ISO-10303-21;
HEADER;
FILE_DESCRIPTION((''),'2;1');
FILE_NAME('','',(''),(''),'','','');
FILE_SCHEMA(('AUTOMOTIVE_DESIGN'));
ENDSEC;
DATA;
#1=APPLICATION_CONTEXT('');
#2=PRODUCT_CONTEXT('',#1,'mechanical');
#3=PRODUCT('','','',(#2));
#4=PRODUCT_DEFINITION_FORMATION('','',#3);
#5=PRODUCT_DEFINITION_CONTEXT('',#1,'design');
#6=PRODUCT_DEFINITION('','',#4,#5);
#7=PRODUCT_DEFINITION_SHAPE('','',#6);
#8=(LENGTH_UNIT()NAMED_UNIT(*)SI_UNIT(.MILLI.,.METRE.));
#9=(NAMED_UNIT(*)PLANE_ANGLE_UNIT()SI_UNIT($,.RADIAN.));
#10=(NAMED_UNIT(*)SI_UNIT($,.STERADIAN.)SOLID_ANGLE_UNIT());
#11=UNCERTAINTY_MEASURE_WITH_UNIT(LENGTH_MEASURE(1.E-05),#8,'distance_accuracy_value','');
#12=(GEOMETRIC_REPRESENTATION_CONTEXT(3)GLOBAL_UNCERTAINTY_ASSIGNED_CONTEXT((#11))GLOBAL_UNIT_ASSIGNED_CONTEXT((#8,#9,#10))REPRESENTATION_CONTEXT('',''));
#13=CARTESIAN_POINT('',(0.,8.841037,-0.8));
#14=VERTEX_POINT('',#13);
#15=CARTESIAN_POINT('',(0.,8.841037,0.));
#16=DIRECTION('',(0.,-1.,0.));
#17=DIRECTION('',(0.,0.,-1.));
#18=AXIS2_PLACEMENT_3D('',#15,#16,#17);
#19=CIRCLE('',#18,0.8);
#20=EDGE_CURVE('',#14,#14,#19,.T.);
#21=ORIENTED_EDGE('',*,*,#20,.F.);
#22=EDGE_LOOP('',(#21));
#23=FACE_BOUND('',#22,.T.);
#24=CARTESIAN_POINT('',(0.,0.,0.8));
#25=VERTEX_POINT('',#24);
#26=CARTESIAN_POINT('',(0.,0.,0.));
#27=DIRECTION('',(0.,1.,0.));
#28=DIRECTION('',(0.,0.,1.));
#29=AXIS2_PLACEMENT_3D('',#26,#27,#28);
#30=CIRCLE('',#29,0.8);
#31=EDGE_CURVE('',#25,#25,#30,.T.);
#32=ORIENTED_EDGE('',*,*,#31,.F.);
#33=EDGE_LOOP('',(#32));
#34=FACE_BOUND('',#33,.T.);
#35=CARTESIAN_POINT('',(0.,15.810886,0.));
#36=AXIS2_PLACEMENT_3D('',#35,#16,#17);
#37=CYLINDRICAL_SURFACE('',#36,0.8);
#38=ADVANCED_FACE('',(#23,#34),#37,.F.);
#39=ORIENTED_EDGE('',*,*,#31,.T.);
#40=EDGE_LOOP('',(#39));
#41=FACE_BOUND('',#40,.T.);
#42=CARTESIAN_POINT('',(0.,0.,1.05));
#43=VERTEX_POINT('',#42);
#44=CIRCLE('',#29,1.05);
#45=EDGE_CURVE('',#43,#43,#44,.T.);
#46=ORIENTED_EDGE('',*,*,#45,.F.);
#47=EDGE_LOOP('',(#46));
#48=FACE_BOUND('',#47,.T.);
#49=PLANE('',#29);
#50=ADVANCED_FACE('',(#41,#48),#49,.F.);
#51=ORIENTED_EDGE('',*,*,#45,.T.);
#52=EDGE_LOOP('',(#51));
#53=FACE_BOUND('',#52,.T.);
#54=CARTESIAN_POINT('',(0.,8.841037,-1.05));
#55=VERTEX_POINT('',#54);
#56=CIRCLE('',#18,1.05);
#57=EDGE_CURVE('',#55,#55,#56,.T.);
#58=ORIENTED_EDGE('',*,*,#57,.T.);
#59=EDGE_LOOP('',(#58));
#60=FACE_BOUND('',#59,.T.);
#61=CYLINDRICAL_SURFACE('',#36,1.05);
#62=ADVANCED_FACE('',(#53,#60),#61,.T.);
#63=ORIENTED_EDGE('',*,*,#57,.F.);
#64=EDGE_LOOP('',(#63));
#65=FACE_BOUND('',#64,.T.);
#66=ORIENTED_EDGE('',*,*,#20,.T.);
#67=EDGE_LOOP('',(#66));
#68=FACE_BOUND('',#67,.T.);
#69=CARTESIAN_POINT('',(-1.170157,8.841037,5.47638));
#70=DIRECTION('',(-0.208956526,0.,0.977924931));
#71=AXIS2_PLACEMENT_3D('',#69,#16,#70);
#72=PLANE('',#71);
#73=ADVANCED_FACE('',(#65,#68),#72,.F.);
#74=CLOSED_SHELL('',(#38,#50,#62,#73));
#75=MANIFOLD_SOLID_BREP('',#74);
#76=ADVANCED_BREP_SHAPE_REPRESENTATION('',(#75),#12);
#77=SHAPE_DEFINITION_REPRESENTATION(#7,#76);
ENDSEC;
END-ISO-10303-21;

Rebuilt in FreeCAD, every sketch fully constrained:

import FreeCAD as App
import Part
import Sketcher

doc = App.newDocument("Part")
body = doc.addObject("PartDesign::Body", "Body")

# Sketch on XZ plane
sketch1 = doc.addObject("Sketcher::SketchObject", "Sketch")
body.addObject(sketch1)
sketch1.AttachmentSupport = (doc.XZ_Plane, [""])
sketch1.MapMode = "FlatFace"
sketch1.addGeometry([
    Part.Circle(App.Vector(0, 0, 0), App.Vector(0, 0, 1), 1.1),
    Part.Circle(App.Vector(0, 0, 0), App.Vector(0, 0, 1), 0.8),
], False)
sketch1.addConstraint([
    Sketcher.Constraint("Coincident", 0, 3, -1, 1),
    Sketcher.Constraint("Coincident", 1, 3, -1, 1),
    Sketcher.Constraint("Diameter", 0, 2.1),
    Sketcher.Constraint("Diameter", 1, 1.6),
])
pad1 = doc.addObject("PartDesign::Pad", "Pad")
body.addObject(pad1)
pad1.Profile = sketch1
pad1.Length = 8.841037
pad1.Reversed = True

doc.recompute()
